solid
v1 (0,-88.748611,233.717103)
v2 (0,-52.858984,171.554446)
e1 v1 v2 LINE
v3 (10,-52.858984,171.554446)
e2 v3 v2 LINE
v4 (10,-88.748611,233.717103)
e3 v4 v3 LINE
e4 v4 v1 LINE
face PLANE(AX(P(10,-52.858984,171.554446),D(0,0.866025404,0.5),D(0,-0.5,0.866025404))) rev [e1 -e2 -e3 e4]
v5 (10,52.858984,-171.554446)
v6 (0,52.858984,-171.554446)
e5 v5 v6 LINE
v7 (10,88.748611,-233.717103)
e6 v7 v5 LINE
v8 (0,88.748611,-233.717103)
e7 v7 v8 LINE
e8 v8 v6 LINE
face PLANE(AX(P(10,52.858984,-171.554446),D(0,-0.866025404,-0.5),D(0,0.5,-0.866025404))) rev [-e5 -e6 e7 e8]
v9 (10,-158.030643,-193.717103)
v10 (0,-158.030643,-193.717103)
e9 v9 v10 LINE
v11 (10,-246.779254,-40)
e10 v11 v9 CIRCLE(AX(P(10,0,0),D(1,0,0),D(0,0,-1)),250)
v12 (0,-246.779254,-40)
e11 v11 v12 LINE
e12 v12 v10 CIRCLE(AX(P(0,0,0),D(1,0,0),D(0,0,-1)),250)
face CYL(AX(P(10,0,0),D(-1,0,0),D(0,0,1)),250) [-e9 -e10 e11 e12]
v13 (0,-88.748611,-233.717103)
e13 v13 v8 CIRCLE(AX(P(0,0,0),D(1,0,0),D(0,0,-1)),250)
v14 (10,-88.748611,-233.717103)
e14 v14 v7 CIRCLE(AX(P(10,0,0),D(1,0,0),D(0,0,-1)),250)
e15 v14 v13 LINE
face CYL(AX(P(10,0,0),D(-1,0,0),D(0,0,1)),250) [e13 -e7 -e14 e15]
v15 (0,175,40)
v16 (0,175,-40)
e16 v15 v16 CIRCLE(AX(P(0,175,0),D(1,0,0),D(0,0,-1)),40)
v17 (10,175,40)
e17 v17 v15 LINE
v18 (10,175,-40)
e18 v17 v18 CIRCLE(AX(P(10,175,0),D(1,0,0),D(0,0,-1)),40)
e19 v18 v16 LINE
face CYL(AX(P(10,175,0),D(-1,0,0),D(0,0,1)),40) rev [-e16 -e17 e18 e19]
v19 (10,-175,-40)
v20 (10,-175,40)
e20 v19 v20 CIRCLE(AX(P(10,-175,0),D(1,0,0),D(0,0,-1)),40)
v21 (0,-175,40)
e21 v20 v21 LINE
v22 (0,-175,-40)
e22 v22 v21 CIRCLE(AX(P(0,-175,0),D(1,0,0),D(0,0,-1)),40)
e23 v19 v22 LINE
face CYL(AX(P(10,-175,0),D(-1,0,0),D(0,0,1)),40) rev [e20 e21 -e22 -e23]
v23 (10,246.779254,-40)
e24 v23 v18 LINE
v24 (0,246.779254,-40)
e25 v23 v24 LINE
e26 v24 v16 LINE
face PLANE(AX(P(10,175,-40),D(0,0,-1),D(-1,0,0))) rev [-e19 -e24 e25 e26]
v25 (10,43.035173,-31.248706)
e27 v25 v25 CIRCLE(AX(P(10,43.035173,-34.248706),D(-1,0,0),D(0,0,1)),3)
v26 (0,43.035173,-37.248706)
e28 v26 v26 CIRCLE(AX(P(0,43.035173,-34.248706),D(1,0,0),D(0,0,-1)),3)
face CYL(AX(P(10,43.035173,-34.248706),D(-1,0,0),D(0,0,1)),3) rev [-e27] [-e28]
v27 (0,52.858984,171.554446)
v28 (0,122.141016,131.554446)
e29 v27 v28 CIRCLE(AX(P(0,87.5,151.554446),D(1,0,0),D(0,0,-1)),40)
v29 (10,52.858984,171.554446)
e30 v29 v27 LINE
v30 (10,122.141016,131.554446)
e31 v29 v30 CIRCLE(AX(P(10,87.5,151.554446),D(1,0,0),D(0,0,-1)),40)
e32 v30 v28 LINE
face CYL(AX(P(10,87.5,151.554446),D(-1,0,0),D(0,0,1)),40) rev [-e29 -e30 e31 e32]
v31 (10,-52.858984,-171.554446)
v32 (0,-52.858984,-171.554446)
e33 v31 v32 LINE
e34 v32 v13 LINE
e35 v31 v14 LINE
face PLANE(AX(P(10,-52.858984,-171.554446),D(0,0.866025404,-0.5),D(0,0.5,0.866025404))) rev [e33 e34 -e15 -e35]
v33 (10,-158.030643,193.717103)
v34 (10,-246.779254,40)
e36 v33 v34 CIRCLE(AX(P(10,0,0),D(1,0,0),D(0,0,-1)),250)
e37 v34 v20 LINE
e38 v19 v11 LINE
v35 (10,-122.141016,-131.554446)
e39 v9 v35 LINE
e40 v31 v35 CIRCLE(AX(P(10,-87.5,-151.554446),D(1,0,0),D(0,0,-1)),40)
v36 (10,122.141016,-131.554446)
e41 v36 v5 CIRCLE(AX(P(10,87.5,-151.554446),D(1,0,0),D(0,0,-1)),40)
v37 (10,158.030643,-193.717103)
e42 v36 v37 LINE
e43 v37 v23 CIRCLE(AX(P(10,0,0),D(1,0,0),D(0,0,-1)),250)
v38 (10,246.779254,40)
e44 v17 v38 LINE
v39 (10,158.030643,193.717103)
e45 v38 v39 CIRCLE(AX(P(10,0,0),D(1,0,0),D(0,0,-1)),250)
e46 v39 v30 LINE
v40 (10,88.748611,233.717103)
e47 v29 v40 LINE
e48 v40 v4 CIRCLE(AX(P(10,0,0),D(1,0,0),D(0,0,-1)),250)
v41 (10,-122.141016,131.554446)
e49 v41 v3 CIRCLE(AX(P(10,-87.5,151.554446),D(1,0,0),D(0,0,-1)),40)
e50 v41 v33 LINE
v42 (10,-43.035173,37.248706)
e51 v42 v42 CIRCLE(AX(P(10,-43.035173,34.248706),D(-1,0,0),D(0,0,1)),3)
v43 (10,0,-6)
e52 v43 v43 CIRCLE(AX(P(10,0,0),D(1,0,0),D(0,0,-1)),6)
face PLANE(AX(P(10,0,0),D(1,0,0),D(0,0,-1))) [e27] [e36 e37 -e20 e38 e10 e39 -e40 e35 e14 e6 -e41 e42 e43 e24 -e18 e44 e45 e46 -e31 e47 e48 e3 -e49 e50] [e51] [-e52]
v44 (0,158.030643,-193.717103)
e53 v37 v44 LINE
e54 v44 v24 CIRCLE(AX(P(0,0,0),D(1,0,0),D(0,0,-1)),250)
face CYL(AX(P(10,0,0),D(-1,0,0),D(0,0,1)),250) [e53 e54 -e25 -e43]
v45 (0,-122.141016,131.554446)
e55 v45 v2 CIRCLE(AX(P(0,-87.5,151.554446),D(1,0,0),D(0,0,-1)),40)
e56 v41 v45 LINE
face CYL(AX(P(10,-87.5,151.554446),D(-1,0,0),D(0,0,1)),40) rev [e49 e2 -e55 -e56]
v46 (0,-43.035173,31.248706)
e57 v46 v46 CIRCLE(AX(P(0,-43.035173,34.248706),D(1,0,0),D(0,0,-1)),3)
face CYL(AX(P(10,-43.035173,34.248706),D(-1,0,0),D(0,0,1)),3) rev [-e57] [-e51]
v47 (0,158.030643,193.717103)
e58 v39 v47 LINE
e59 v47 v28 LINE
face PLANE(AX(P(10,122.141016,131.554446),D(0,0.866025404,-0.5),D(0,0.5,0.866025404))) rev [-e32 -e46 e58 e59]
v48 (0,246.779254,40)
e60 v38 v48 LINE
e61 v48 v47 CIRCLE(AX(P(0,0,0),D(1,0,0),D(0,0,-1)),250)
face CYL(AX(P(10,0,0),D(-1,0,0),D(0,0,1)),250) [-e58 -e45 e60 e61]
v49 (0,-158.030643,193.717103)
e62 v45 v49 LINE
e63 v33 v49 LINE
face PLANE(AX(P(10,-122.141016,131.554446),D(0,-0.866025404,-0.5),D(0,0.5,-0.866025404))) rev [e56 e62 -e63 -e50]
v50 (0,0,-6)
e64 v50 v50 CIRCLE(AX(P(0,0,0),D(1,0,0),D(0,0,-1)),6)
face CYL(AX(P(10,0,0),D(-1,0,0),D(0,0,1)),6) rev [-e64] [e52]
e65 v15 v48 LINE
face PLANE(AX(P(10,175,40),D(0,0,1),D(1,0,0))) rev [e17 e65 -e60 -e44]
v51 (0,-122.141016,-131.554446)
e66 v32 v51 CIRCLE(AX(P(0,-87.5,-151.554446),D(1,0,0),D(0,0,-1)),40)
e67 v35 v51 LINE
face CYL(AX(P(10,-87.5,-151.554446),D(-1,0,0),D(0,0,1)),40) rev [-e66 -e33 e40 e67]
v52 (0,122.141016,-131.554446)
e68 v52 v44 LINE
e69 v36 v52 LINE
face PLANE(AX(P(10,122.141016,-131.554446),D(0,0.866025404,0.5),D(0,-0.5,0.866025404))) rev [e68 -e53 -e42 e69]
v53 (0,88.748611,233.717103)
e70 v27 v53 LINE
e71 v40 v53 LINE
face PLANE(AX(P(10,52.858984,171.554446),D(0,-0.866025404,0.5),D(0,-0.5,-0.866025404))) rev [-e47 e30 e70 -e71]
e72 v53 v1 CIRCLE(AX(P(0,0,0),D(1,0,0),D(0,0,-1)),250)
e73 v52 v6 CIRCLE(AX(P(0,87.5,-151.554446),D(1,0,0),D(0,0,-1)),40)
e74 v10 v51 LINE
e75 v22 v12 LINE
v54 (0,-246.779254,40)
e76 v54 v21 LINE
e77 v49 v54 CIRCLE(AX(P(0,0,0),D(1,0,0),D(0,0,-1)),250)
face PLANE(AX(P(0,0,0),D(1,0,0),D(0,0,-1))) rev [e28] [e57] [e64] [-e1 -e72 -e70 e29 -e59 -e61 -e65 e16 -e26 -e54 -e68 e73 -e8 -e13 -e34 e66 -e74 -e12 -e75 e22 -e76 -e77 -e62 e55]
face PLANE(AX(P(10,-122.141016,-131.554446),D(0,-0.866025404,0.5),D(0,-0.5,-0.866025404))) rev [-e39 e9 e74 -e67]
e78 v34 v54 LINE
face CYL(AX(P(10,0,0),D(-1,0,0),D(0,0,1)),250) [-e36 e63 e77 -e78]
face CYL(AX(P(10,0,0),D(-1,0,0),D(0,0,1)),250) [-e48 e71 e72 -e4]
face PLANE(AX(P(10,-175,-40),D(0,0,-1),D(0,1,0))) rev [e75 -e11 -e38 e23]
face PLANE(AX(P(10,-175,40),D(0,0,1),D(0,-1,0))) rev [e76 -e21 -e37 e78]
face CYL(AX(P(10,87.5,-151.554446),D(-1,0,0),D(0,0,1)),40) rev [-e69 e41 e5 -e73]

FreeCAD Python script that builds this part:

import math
import FreeCAD as App
import Part
import Sketcher
from FreeCAD import Vector
Q = App.Units.Quantity

doc = App.newDocument("Part")
params = doc.addObject("Spreadsheet::Sheet", "Params")
for row, (alias, value) in enumerate([
    ("sketch1_diameter", "500 mm"),
    ("sketch1_diameter2", "80 mm"),
    ("sketch1_diameter3", "12 mm"),
    ("pad1_length", "10 mm"),
    ("sketch2_diameter", "6 mm"),
    ("sketch2_radius", "40 mm"),
    ("sketch2_radius2", "250 mm"),
], start=1):
    params.set(f"A{row}", alias)
    params.set(f"B{row}", "=" + value)
    params.setAlias(f"B{row}", alias)

body = doc.addObject("PartDesign::Body", "Body")

sketch1 = body.newObject("Sketcher::SketchObject", "Sketch")
sketch1.AttachmentSupport = (doc.getObject("YZ_Plane"), [""])
sketch1.MapMode = "FlatFace"
sketch1.addGeometry([
    Part.Circle(Vector(0, 0, 0), Vector(0, 0, 1), 250),
    Part.Circle(Vector(-87.5, 151.554446, 0), Vector(0, 0, 1), 40),
    Part.Circle(Vector(-175, 0, 0), Vector(0, 0, 1), 40),
    Part.Circle(Vector(-87.5, -151.554446, 0), Vector(0, 0, 1), 40),
    Part.Circle(Vector(87.5, 151.554446, 0), Vector(0, 0, 1), 40),
    Part.Circle(Vector(0, 0, 0), Vector(0, 0, 1), 6),
    Part.Circle(Vector(87.5, -151.554446, 0), Vector(0, 0, 1), 40),
    Part.Circle(Vector(175, 0, 0), Vector(0, 0, 1), 40),
], False)
sketch1.addConstraint([
    Sketcher.Constraint("Coincident", 0, 3, -1, 1),
    Sketcher.Constraint("Coincident", 5, 3, -1, 1),
    Sketcher.Constraint("Equal", 1, 2),
    Sketcher.Constraint("Equal", 2, 3),
    Sketcher.Constraint("Equal", 3, 4),
    Sketcher.Constraint("Equal", 4, 6),
    Sketcher.Constraint("Equal", 6, 7),
    Sketcher.Constraint("Symmetric", 3, 3, 4, 3, -1, 1),
    Sketcher.Constraint("Symmetric", 1, 3, 6, 3, -1, 1),
    Sketcher.Constraint("Symmetric", 2, 3, 7, 3, -1, 1),
    Sketcher.Constraint("Symmetric", 1, 3, 4, 3, -2),
    Sketcher.Constraint("PointOnObject", 2, 3, -1),
    Sketcher.Constraint("Diameter", 0, 500.0),
    Sketcher.Constraint("Diameter", 1, 80.0),
    Sketcher.Constraint("Diameter", 5, 12.0),
    Sketcher.Constraint("DistanceX", 2, 3, -1, 1, 175.0),
    Sketcher.Constraint("DistanceX", 1, 3, 4, 3, 175.0),
    Sketcher.Constraint("DistanceY", 3, 3, 1, 3, 303.108891),
])
sketch1.setExpression("Constraints[12]", "Params.sketch1_diameter")
sketch1.setExpression("Constraints[13]", "Params.sketch1_diameter2")
sketch1.setExpression("Constraints[14]", "Params.sketch1_diameter3")
pad1 = body.newObject("PartDesign::Pad", "Pad")
pad1.Profile = sketch1
pad1.setExpression("Length", "Params.pad1_length")

sketch2 = body.newObject("Sketcher::SketchObject", "Sketch001")
sketch2.AttachmentSupport = (doc.getObject("YZ_Plane"), [""])
sketch2.MapMode = "FlatFace"
sketch2.addGeometry([
    Part.Circle(Vector(43.035173, -34.248706, 0), Vector(0, 0, 1), 3),
    Part.Circle(Vector(-43.035173, 34.248706, 0), Vector(0, 0, 1), 3),
    Part.LineSegment(Vector(246.779254, -40, 0), Vector(175, -40, 0)),
    Part.ArcOfCircle(Part.Circle(Vector(175, 0, 0), Vector(0, 0, 1), 40), math.radians(-90), math.radians(90)),
    Part.LineSegment(Vector(175, 40, 0), Vector(246.779254, 40, 0)),
    Part.ArcOfCircle(Part.Circle(Vector(0, 0, 0), Vector(0, 0, 1), 250), math.radians(-9.206896), math.radians(9.206896)),
    Part.LineSegment(Vector(158.030643, 193.717103, 0), Vector(122.141016, 131.554446, 0)),
    Part.ArcOfCircle(Part.Circle(Vector(87.5, 151.554446, 0), Vector(0, 0, 1), 40), math.radians(-30), math.radians(150)),
    Part.LineSegment(Vector(52.858984, 171.554446, 0), Vector(88.748611, 233.717103, 0)),
    Part.ArcOfCircle(Part.Circle(Vector(0, 0, 0), Vector(0, 0, 1), 250), math.radians(50.793104), math.radians(69.206896)),
    Part.LineSegment(Vector(-88.748611, 233.717103, 0), Vector(-52.858984, 171.554446, 0)),
    Part.ArcOfCircle(Part.Circle(Vector(-87.5, 151.554446, 0), Vector(0, 0, 1), 40), math.radians(30), math.radians(210)),
    Part.LineSegment(Vector(-122.141016, 131.554446, 0), Vector(-158.030643, 193.717103, 0)),
    Part.ArcOfCircle(Part.Circle(Vector(0, 0, 0), Vector(0, 0, 1), 250), math.radians(110.793104), math.radians(129.206896)),
    Part.LineSegment(Vector(-246.779254, 40, 0), Vector(-175, 40, 0)),
    Part.ArcOfCircle(Part.Circle(Vector(-175, 0, 0), Vector(0, 0, 1), 40), math.radians(90), math.radians(270)),
    Part.LineSegment(Vector(-175, -40, 0), Vector(-246.779254, -40, 0)),
    Part.ArcOfCircle(Part.Circle(Vector(0, 0, 0), Vector(0, 0, 1), 250), math.radians(170.793104), math.radians(189.206896)),
    Part.LineSegment(Vector(-158.030643, -193.717103, 0), Vector(-122.141016, -131.554446, 0)),
    Part.ArcOfCircle(Part.Circle(Vector(-87.5, -151.554446, 0), Vector(0, 0, 1), 40), math.radians(150), math.radians(330)),
    Part.LineSegment(Vector(-52.858984, -171.554446, 0), Vector(-88.748611, -233.717103, 0)),
    Part.ArcOfCircle(Part.Circle(Vector(0, 0, 0), Vector(0, 0, 1), 250), math.radians(-129.206896), math.radians(-110.793104)),
    Part.LineSegment(Vector(88.748611, -233.717103, 0), Vector(52.858984, -171.554446, 0)),
    Part.ArcOfCircle(Part.Circle(Vector(87.5, -151.554446, 0), Vector(0, 0, 1), 40), math.radians(-150), math.radians(30)),
    Part.LineSegment(Vector(122.141016, -131.554446, 0), Vector(158.030643, -193.717103, 0)),
    Part.ArcOfCircle(Part.Circle(Vector(0, 0, 0), Vector(0, 0, 1), 250), math.radians(-69.206896), math.radians(-50.793104)),
], False)
sketch2.addConstraint([
    Sketcher.Constraint("Tangent", 2, 2, 3, 1),
    Sketcher.Constraint("Tangent", 3, 2, 4, 1),
    Sketcher.Constraint("Coincident", 4, 2, 5, 2),
    Sketcher.Constraint("Coincident", 5, 1, 2, 1),
    Sketcher.Constraint("Tangent", 6, 2, 7, 1),
    Sketcher.Constraint("Tangent", 7, 2, 8, 1),
    Sketcher.Constraint("Coincident", 8, 2, 9, 2),
    Sketcher.Constraint("Coincident", 9, 1, 6, 1),
    Sketcher.Constraint("Tangent", 10, 2, 11, 1),
    Sketcher.Constraint("Tangent", 11, 2, 12, 1),
    Sketcher.Constraint("Coincident", 12, 2, 13, 2),
    Sketcher.Constraint("Coincident", 13, 1, 10, 1),
    Sketcher.Constraint("Tangent", 14, 2, 15, 1),
    Sketcher.Constraint("Tangent", 15, 2, 16, 1),
    Sketcher.Constraint("Coincident", 16, 2, 17, 2),
    Sketcher.Constraint("Coincident", 17, 1, 14, 1),
    Sketcher.Constraint("Tangent", 18, 2, 19, 1),
    Sketcher.Constraint("Tangent", 19, 2, 20, 1),
    Sketcher.Constraint("Coincident", 20, 2, 21, 2),
    Sketcher.Constraint("Coincident", 21, 1, 18, 1),
    Sketcher.Constraint("Tangent", 22, 2, 23, 1),
    Sketcher.Constraint("Tangent", 23, 2, 24, 1),
    Sketcher.Constraint("Coincident", 24, 2, 25, 2),
    Sketcher.Constraint("Coincident", 25, 1, 22, 1),
    Sketcher.Constraint("Horizontal", 2),
    Sketcher.Constraint("Horizontal", 4),
    Sketcher.Constraint("Horizontal", 14),
    Sketcher.Constraint("Horizontal", 16),
    Sketcher.Constraint("Coincident", 5, 3, -1, 1),
    Sketcher.Constraint("Coincident", 9, 3, -1, 1),
    Sketcher.Constraint("Coincident", 13, 3, -1, 1),
    Sketcher.Constraint("Coincident", 17, 3, -1, 1),
    Sketcher.Constraint("Coincident", 21, 3, -1, 1),
    Sketcher.Constraint("Coincident", 25, 3, -1, 1),
    Sketcher.Constraint("Equal", 0, 1),
    Sketcher.Constraint("Equal", 3, 7),
    Sketcher.Constraint("Equal", 5, 9),
    Sketcher.Constraint("Equal", 7, 11),
    Sketcher.Constraint("Equal", 9, 13),
    Sketcher.Constraint("Equal", 11, 15),
    Sketcher.Constraint("Equal", 13, 17),
    Sketcher.Constraint("Equal", 15, 19),
    Sketcher.Constraint("Equal", 17, 21),
    Sketcher.Constraint("Equal", 19, 23),
    Sketcher.Constraint("Equal", 21, 25),
    Sketcher.Constraint("Symmetric", 0, 3, 1, 3, -1, 1),
    Sketcher.Constraint("Symmetric", 3, 3, 15, 3, -1, 1),
    Sketcher.Constraint("Symmetric", 7, 3, 19, 3, -1, 1),
    Sketcher.Constraint("Symmetric", 11, 3, 23, 3, -1, 1),
    Sketcher.Constraint("Symmetric", 7, 3, 11, 3, -2),
    Sketcher.Constraint("PointOnObject", 3, 3, -1),
    Sketcher.Constraint("Parallel", 6, 8),
    Sketcher.Constraint("Parallel", 10, 12),
    Sketcher.Constraint("Parallel", 8, 18),
    Sketcher.Constraint("Parallel", 18, 20),
    Sketcher.Constraint("Parallel", 12, 22),
    Sketcher.Constraint("Parallel", 22, 24),
    Sketcher.Constraint("Horizontal", 7, 2, 10, 2),
    Sketcher.Constraint("Equal", 6, 8),
    Sketcher.Constraint("Diameter", 0, 6.0),
    Sketcher.Constraint("Radius", 3, 40.0),
    Sketcher.Constraint("Radius", 5, 250.0),
    Sketcher.Constraint("Angle", 6, Q("-120 deg")),
    Sketcher.Constraint("DistanceX", -1, 1, 3, 3, 175.0),
    Sketcher.Constraint("DistanceX", 11, 3, 7, 3, 175.0),
    Sketcher.Constraint("DistanceY", 0, 3, 1, 3, 68.497412),
    Sketcher.Constraint("DistanceX", 0, 3, 4, 2, 203.74408),
])
sketch2.setExpression("Constraints[59]", "Params.sketch2_diameter")
sketch2.setExpression("Constraints[60]", "Params.sketch2_radius")
sketch2.setExpression("Constraints[61]", "Params.sketch2_radius2")
pocket1 = body.newObject("PartDesign::Pocket", "Pocket")
pocket1.Profile = sketch2
pocket1.Type = "ThroughAll"
pocket1.Midplane = True

doc.recompute()
